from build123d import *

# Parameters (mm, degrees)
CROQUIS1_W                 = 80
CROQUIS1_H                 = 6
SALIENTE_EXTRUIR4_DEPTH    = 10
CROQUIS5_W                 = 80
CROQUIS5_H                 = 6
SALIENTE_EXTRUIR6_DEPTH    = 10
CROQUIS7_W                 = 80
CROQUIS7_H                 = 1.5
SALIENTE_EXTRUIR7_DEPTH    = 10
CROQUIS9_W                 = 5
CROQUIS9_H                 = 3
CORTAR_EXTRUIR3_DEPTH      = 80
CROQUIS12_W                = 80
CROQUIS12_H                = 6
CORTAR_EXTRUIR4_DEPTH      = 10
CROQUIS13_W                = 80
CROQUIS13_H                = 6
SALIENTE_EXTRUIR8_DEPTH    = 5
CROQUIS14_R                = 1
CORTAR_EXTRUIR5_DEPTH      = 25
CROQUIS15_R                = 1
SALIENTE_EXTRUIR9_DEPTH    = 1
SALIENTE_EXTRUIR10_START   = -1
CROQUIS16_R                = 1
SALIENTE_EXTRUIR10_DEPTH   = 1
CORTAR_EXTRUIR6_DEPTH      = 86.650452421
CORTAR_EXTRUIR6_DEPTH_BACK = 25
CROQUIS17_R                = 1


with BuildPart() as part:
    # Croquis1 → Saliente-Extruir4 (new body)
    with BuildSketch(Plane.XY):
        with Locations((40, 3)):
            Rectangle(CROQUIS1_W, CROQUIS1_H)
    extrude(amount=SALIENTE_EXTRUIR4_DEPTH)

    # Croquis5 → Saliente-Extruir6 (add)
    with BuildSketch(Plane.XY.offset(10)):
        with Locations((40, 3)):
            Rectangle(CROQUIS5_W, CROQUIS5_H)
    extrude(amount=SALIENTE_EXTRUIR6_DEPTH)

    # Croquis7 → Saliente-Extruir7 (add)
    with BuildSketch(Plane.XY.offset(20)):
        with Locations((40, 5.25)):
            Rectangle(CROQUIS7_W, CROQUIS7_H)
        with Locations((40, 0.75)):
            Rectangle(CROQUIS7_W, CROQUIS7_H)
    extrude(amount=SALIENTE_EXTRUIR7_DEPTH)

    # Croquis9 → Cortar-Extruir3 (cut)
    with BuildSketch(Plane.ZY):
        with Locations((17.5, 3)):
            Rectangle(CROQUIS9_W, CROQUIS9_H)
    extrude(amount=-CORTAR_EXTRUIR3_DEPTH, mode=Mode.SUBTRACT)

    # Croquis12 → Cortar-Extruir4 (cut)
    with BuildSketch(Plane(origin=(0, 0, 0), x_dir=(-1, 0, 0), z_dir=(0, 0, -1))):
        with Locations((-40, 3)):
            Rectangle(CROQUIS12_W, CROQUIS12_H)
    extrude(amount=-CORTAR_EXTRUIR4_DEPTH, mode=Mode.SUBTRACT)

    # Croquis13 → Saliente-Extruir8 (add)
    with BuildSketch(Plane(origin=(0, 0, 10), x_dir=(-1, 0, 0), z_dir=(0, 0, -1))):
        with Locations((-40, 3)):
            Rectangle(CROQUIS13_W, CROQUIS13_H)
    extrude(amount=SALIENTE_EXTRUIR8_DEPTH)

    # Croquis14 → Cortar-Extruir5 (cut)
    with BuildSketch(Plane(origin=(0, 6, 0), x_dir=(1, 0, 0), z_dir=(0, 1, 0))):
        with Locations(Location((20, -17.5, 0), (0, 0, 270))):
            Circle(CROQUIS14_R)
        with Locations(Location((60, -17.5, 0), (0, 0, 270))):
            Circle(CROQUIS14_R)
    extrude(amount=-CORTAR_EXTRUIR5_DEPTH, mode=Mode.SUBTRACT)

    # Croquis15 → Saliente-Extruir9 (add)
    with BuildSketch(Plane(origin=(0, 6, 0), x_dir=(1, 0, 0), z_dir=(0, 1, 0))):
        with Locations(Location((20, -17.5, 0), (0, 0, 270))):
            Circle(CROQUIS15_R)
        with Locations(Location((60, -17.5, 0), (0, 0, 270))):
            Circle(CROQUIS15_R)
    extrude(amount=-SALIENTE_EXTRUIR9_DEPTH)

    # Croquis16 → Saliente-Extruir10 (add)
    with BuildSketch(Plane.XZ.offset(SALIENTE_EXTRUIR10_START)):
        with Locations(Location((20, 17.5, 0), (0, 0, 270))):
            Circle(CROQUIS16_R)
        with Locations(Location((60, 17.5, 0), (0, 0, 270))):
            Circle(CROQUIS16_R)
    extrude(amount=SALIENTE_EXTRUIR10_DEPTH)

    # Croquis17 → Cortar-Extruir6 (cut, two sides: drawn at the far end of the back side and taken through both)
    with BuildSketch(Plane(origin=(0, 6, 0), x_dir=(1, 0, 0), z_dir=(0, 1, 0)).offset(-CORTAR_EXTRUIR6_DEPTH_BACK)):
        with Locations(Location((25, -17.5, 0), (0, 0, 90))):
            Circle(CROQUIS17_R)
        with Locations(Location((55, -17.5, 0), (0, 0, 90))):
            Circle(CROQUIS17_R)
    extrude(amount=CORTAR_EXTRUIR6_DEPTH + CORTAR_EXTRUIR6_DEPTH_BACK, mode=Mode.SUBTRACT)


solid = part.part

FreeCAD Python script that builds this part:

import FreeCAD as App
import Part
import Sketcher
from FreeCAD import Vector
Q = App.Units.Quantity


def add_polygon(sketch, points):
    """Adds a closed chain of lines whose ends are joined by coincident constraints."""
    first, n = sketch.GeometryCount, len(points)
    for a, b in zip(points, points[1:] + points[:1]):
        sketch.addGeometry(Part.LineSegment(App.Vector(*a, 0), App.Vector(*b, 0)), False)
    for i in range(n):
        sketch.addConstraint(Sketcher.Constraint("Coincident", first + i, 2, first + (i + 1) % n, 1))

doc = App.newDocument("Part")
body = doc.addObject("PartDesign::Body", "Body")

# Sketch on XY plane
sketch1 = body.newObject("Sketcher::SketchObject", "Sketch")
sketch1.AttachmentSupport = (doc.getObject("XY_Plane"), [""])
sketch1.MapMode = "FlatFace"
add_polygon(sketch1, [(0, 6), (0, 0), (80, 0), (80, 6)])  # lines 0-3
sketch1.addConstraint([
    Sketcher.Constraint("Vertical", 0),
    Sketcher.Constraint("Horizontal", 1),
    Sketcher.Constraint("Vertical", 2),
    Sketcher.Constraint("Horizontal", 3),
    Sketcher.Constraint("Coincident", 0, 2, -1, 1),
    Sketcher.Constraint("DistanceX", 1, 1, 1, 2, Q("80 mm")),
    Sketcher.Constraint("DistanceY", 0, 2, 0, 1, Q("6 mm")),
])
pad1 = body.newObject("PartDesign::Pad", "Pad")
pad1.Profile = sketch1
pad1.Length = 10

# Sketch on XY plane
sketch2 = body.newObject("Sketcher::SketchObject", "Sketch001")
sketch2.AttachmentSupport = (doc.getObject("XY_Plane"), [""])
sketch2.MapMode = "FlatFace"
sketch2.AttachmentOffset = App.Placement(Vector(0, 0, 10), App.Rotation())
add_polygon(sketch2, [(0, 6), (0, 0), (80, 0), (80, 6)])  # lines 0-3
sketch2.addConstraint([
    Sketcher.Constraint("Vertical", 0),
    Sketcher.Constraint("Horizontal", 1),
    Sketcher.Constraint("Vertical", 2),
    Sketcher.Constraint("Horizontal", 3),
    Sketcher.Constraint("Coincident", 0, 2, -1, 1),
    Sketcher.Constraint("DistanceX", 1, 1, 1, 2, Q("80 mm")),
    Sketcher.Constraint("DistanceY", 0, 2, 0, 1, Q("6 mm")),
])
pad2 = body.newObject("PartDesign::Pad", "Pad001")
pad2.Profile = sketch2
pad2.Length = 10

# Sketch on XY plane
sketch3 = body.newObject("Sketcher::SketchObject", "Sketch002")
sketch3.AttachmentSupport = (doc.getObject("XY_Plane"), [""])
sketch3.MapMode = "FlatFace"
sketch3.AttachmentOffset = App.Placement(Vector(0, 0, 20), App.Rotation())
add_polygon(sketch3, [(0, 6), (0, 4.5), (80, 4.5), (80, 6)])  # lines 0-3
add_polygon(sketch3, [(0, 1.5), (0, 0), (80, 0), (80, 1.5)])  # lines 4-7
sketch3.addConstraint([
    Sketcher.Constraint("Vertical", 0),
    Sketcher.Constraint("Horizontal", 1),
    Sketcher.Constraint("Vertical", 2),
    Sketcher.Constraint("Horizontal", 3),
    Sketcher.Constraint("Vertical", 4),
    Sketcher.Constraint("Horizontal", 5),
    Sketcher.Constraint("Vertical", 6),
    Sketcher.Constraint("Horizontal", 7),
    Sketcher.Constraint("Coincident", 4, 2, -1, 1),
    Sketcher.Constraint("PointOnObject", 0, 2, -2),
    Sketcher.Constraint("Vertical", 2, 2, 5, 2),
    Sketcher.Constraint("Equal", 2, 4),
    Sketcher.Constraint("DistanceX", 1, 1, 1, 2, Q("80 mm")),
    Sketcher.Constraint("DistanceY", 0, 2, 0, 1, Q("1.5 mm")),
    Sketcher.Constraint("DistanceY", -1, 1, 2, 2, Q("6 mm")),
])
pad3 = body.newObject("PartDesign::Pad", "Pad002")
pad3.Profile = sketch3
pad3.Length = 10

# Sketch on YZ plane
sketch4 = body.newObject("Sketcher::SketchObject", "Sketch003")
sketch4.AttachmentSupport = (doc.getObject("YZ_Plane"), [""])
sketch4.MapMode = "FlatFace"
add_polygon(sketch4, [(4.5, 15), (1.5, 15), (1.5, 20), (4.5, 20)])  # lines 0-3
sketch4.addConstraint([
    Sketcher.Constraint("Horizontal", 0),
    Sketcher.Constraint("Vertical", 1),
    Sketcher.Constraint("Horizontal", 2),
    Sketcher.Constraint("Vertical", 3),
    Sketcher.Constraint("DistanceX", 0, 2, 0, 1, Q("3 mm")),
    Sketcher.Constraint("DistanceY", 1, 1, 1, 2, Q("5 mm")),
    Sketcher.Constraint("DistanceY", -1, 1, 0, 2, Q("15 mm")),
    Sketcher.Constraint("DistanceX", -1, 1, 0, 2, Q("1.5 mm")),
])
pocket1 = body.newObject("PartDesign::Pocket", "Pocket")
pocket1.Profile = sketch4
pocket1.Length = 80
pocket1.Reversed = True

# Sketch on XY plane
sketch5 = body.newObject("Sketcher::SketchObject", "Sketch004")
sketch5.AttachmentSupport = (doc.getObject("XY_Plane"), [""])
sketch5.MapMode = "FlatFace"
add_polygon(sketch5, [(80, 6), (80, 0), (0, 0), (0, 6)])  # lines 0-3
sketch5.addConstraint([
    Sketcher.Constraint("Vertical", 0),
    Sketcher.Constraint("Horizontal", 1),
    Sketcher.Constraint("Vertical", 2),
    Sketcher.Constraint("Horizontal", 3),
    Sketcher.Constraint("Coincident", 1, 2, -1, 1),
    Sketcher.Constraint("DistanceX", 1, 2, 1, 1, Q("80 mm")),
    Sketcher.Constraint("DistanceY", 0, 2, 0, 1, Q("6 mm")),
])
pocket2 = body.newObject("PartDesign::Pocket", "Pocket001")
pocket2.Profile = sketch5
pocket2.Length = 10
pocket2.Reversed = True

# Sketch on XY plane
sketch6 = body.newObject("Sketcher::SketchObject", "Sketch005")
sketch6.AttachmentSupport = (doc.getObject("XY_Plane"), [""])
sketch6.MapMode = "FlatFace"
sketch6.AttachmentOffset = App.Placement(Vector(0, 0, 10), App.Rotation())
add_polygon(sketch6, [(80, 6), (80, 0), (0, 0), (0, 6)])  # lines 0-3
sketch6.addConstraint([
    Sketcher.Constraint("Vertical", 0),
    Sketcher.Constraint("Horizontal", 1),
    Sketcher.Constraint("Vertical", 2),
    Sketcher.Constraint("Horizontal", 3),
    Sketcher.Constraint("Coincident", 1, 2, -1, 1),
    Sketcher.Constraint("DistanceX", 1, 2, 1, 1, Q("80 mm")),
    Sketcher.Constraint("DistanceY", 0, 2, 0, 1, Q("6 mm")),
])
pad4 = body.newObject("PartDesign::Pad", "Pad003")
pad4.Profile = sketch6
pad4.Length = 5
pad4.Reversed = True

# Sketch on XZ plane
sketch7 = body.newObject("Sketcher::SketchObject", "Sketch006")
sketch7.AttachmentSupport = (doc.getObject("XZ_Plane"), [""])
sketch7.MapMode = "FlatFace"
sketch7.AttachmentOffset = App.Placement(Vector(0, 0, -6), App.Rotation())
sketch7.addGeometry([
    Part.Circle(Vector(20, 17.5, 0), Vector(0, 0, 1), 1),
    Part.Circle(Vector(60, 17.5, 0), Vector(0, 0, 1), 1),
], False)
sketch7.addConstraint([
    Sketcher.Constraint("Equal", 0, 1),
    Sketcher.Constraint("Horizontal", 0, 3, 1, 3),
    Sketcher.Constraint("Diameter", 0, Q("2 mm")),
    Sketcher.Constraint("DistanceX", -1, 1, 0, 3, Q("20 mm")),
    Sketcher.Constraint("DistanceX", -1, 1, 1, 3, Q("60 mm")),
    Sketcher.Constraint("DistanceY", -1, 1, 0, 3, Q("17.5 mm")),
])
pocket3 = body.newObject("PartDesign::Pocket", "Pocket002")
pocket3.Profile = sketch7
pocket3.Length = 25
pocket3.Reversed = True

# Sketch on XZ plane
sketch8 = body.newObject("Sketcher::SketchObject", "Sketch007")
sketch8.AttachmentSupport = (doc.getObject("XZ_Plane"), [""])
sketch8.MapMode = "FlatFace"
sketch8.AttachmentOffset = App.Placement(Vector(0, 0, -6), App.Rotation())
sketch8.addGeometry([
    Part.Circle(Vector(20, 17.5, 0), Vector(0, 0, 1), 1),
    Part.Circle(Vector(60, 17.5, 0), Vector(0, 0, 1), 1),
], False)
sketch8.addConstraint([
    Sketcher.Constraint("Equal", 0, 1),
    Sketcher.Constraint("Horizontal", 0, 3, 1, 3),
    Sketcher.Constraint("Diameter", 0, Q("2 mm")),
    Sketcher.Constraint("DistanceX", -1, 1, 0, 3, Q("20 mm")),
    Sketcher.Constraint("DistanceX", -1, 1, 1, 3, Q("60 mm")),
    Sketcher.Constraint("DistanceY", -1, 1, 0, 3, Q("17.5 mm")),
])
pad5 = body.newObject("PartDesign::Pad", "Pad004")
pad5.Profile = sketch8
pad5.Length = 1

# Sketch on XZ plane
sketch9 = body.newObject("Sketcher::SketchObject", "Sketch008")
sketch9.AttachmentSupport = (doc.getObject("XZ_Plane"), [""])
sketch9.MapMode = "FlatFace"
sketch9.AttachmentOffset = App.Placement(Vector(0, 0, -1), App.Rotation())
sketch9.addGeometry([
    Part.Circle(Vector(20, 17.5, 0), Vector(0, 0, 1), 1),
    Part.Circle(Vector(60, 17.5, 0), Vector(0, 0, 1), 1),
], False)
sketch9.addConstraint([
    Sketcher.Constraint("Equal", 0, 1),
    Sketcher.Constraint("Horizontal", 0, 3, 1, 3),
    Sketcher.Constraint("Diameter", 0, Q("2 mm")),
    Sketcher.Constraint("DistanceX", -1, 1, 0, 3, Q("20 mm")),
    Sketcher.Constraint("DistanceX", -1, 1, 1, 3, Q("60 mm")),
    Sketcher.Constraint("DistanceY", -1, 1, 0, 3, Q("17.5 mm")),
])
pad6 = body.newObject("PartDesign::Pad", "Pad005")
pad6.Profile = sketch9
pad6.Length = 1

# Sketch on XZ plane
sketch10 = body.newObject("Sketcher::SketchObject", "Sketch009")
sketch10.AttachmentSupport = (doc.getObject("XZ_Plane"), [""])
sketch10.MapMode = "FlatFace"
sketch10.AttachmentOffset = App.Placement(Vector(0, 0, -6), App.Rotation())
sketch10.addGeometry([
    Part.Circle(Vector(25, 17.5, 0), Vector(0, 0, 1), 1),
    Part.Circle(Vector(55, 17.5, 0), Vector(0, 0, 1), 1),
], False)
sketch10.addConstraint([
    Sketcher.Constraint("Equal", 0, 1),
    Sketcher.Constraint("Horizontal", 0, 3, 1, 3),
    Sketcher.Constraint("Diameter", 0, Q("2 mm")),
    Sketcher.Constraint("DistanceX", -1, 1, 0, 3, Q("25 mm")),
    Sketcher.Constraint("DistanceX", -1, 1, 1, 3, Q("55 mm")),
    Sketcher.Constraint("DistanceY", -1, 1, 0, 3, Q("17.5 mm")),
])
pocket4 = body.newObject("PartDesign::Pocket", "Pocket003")
pocket4.Profile = sketch10
pocket4.Type = "ThroughAll"
pocket4.Midplane = True

doc.recompute()
